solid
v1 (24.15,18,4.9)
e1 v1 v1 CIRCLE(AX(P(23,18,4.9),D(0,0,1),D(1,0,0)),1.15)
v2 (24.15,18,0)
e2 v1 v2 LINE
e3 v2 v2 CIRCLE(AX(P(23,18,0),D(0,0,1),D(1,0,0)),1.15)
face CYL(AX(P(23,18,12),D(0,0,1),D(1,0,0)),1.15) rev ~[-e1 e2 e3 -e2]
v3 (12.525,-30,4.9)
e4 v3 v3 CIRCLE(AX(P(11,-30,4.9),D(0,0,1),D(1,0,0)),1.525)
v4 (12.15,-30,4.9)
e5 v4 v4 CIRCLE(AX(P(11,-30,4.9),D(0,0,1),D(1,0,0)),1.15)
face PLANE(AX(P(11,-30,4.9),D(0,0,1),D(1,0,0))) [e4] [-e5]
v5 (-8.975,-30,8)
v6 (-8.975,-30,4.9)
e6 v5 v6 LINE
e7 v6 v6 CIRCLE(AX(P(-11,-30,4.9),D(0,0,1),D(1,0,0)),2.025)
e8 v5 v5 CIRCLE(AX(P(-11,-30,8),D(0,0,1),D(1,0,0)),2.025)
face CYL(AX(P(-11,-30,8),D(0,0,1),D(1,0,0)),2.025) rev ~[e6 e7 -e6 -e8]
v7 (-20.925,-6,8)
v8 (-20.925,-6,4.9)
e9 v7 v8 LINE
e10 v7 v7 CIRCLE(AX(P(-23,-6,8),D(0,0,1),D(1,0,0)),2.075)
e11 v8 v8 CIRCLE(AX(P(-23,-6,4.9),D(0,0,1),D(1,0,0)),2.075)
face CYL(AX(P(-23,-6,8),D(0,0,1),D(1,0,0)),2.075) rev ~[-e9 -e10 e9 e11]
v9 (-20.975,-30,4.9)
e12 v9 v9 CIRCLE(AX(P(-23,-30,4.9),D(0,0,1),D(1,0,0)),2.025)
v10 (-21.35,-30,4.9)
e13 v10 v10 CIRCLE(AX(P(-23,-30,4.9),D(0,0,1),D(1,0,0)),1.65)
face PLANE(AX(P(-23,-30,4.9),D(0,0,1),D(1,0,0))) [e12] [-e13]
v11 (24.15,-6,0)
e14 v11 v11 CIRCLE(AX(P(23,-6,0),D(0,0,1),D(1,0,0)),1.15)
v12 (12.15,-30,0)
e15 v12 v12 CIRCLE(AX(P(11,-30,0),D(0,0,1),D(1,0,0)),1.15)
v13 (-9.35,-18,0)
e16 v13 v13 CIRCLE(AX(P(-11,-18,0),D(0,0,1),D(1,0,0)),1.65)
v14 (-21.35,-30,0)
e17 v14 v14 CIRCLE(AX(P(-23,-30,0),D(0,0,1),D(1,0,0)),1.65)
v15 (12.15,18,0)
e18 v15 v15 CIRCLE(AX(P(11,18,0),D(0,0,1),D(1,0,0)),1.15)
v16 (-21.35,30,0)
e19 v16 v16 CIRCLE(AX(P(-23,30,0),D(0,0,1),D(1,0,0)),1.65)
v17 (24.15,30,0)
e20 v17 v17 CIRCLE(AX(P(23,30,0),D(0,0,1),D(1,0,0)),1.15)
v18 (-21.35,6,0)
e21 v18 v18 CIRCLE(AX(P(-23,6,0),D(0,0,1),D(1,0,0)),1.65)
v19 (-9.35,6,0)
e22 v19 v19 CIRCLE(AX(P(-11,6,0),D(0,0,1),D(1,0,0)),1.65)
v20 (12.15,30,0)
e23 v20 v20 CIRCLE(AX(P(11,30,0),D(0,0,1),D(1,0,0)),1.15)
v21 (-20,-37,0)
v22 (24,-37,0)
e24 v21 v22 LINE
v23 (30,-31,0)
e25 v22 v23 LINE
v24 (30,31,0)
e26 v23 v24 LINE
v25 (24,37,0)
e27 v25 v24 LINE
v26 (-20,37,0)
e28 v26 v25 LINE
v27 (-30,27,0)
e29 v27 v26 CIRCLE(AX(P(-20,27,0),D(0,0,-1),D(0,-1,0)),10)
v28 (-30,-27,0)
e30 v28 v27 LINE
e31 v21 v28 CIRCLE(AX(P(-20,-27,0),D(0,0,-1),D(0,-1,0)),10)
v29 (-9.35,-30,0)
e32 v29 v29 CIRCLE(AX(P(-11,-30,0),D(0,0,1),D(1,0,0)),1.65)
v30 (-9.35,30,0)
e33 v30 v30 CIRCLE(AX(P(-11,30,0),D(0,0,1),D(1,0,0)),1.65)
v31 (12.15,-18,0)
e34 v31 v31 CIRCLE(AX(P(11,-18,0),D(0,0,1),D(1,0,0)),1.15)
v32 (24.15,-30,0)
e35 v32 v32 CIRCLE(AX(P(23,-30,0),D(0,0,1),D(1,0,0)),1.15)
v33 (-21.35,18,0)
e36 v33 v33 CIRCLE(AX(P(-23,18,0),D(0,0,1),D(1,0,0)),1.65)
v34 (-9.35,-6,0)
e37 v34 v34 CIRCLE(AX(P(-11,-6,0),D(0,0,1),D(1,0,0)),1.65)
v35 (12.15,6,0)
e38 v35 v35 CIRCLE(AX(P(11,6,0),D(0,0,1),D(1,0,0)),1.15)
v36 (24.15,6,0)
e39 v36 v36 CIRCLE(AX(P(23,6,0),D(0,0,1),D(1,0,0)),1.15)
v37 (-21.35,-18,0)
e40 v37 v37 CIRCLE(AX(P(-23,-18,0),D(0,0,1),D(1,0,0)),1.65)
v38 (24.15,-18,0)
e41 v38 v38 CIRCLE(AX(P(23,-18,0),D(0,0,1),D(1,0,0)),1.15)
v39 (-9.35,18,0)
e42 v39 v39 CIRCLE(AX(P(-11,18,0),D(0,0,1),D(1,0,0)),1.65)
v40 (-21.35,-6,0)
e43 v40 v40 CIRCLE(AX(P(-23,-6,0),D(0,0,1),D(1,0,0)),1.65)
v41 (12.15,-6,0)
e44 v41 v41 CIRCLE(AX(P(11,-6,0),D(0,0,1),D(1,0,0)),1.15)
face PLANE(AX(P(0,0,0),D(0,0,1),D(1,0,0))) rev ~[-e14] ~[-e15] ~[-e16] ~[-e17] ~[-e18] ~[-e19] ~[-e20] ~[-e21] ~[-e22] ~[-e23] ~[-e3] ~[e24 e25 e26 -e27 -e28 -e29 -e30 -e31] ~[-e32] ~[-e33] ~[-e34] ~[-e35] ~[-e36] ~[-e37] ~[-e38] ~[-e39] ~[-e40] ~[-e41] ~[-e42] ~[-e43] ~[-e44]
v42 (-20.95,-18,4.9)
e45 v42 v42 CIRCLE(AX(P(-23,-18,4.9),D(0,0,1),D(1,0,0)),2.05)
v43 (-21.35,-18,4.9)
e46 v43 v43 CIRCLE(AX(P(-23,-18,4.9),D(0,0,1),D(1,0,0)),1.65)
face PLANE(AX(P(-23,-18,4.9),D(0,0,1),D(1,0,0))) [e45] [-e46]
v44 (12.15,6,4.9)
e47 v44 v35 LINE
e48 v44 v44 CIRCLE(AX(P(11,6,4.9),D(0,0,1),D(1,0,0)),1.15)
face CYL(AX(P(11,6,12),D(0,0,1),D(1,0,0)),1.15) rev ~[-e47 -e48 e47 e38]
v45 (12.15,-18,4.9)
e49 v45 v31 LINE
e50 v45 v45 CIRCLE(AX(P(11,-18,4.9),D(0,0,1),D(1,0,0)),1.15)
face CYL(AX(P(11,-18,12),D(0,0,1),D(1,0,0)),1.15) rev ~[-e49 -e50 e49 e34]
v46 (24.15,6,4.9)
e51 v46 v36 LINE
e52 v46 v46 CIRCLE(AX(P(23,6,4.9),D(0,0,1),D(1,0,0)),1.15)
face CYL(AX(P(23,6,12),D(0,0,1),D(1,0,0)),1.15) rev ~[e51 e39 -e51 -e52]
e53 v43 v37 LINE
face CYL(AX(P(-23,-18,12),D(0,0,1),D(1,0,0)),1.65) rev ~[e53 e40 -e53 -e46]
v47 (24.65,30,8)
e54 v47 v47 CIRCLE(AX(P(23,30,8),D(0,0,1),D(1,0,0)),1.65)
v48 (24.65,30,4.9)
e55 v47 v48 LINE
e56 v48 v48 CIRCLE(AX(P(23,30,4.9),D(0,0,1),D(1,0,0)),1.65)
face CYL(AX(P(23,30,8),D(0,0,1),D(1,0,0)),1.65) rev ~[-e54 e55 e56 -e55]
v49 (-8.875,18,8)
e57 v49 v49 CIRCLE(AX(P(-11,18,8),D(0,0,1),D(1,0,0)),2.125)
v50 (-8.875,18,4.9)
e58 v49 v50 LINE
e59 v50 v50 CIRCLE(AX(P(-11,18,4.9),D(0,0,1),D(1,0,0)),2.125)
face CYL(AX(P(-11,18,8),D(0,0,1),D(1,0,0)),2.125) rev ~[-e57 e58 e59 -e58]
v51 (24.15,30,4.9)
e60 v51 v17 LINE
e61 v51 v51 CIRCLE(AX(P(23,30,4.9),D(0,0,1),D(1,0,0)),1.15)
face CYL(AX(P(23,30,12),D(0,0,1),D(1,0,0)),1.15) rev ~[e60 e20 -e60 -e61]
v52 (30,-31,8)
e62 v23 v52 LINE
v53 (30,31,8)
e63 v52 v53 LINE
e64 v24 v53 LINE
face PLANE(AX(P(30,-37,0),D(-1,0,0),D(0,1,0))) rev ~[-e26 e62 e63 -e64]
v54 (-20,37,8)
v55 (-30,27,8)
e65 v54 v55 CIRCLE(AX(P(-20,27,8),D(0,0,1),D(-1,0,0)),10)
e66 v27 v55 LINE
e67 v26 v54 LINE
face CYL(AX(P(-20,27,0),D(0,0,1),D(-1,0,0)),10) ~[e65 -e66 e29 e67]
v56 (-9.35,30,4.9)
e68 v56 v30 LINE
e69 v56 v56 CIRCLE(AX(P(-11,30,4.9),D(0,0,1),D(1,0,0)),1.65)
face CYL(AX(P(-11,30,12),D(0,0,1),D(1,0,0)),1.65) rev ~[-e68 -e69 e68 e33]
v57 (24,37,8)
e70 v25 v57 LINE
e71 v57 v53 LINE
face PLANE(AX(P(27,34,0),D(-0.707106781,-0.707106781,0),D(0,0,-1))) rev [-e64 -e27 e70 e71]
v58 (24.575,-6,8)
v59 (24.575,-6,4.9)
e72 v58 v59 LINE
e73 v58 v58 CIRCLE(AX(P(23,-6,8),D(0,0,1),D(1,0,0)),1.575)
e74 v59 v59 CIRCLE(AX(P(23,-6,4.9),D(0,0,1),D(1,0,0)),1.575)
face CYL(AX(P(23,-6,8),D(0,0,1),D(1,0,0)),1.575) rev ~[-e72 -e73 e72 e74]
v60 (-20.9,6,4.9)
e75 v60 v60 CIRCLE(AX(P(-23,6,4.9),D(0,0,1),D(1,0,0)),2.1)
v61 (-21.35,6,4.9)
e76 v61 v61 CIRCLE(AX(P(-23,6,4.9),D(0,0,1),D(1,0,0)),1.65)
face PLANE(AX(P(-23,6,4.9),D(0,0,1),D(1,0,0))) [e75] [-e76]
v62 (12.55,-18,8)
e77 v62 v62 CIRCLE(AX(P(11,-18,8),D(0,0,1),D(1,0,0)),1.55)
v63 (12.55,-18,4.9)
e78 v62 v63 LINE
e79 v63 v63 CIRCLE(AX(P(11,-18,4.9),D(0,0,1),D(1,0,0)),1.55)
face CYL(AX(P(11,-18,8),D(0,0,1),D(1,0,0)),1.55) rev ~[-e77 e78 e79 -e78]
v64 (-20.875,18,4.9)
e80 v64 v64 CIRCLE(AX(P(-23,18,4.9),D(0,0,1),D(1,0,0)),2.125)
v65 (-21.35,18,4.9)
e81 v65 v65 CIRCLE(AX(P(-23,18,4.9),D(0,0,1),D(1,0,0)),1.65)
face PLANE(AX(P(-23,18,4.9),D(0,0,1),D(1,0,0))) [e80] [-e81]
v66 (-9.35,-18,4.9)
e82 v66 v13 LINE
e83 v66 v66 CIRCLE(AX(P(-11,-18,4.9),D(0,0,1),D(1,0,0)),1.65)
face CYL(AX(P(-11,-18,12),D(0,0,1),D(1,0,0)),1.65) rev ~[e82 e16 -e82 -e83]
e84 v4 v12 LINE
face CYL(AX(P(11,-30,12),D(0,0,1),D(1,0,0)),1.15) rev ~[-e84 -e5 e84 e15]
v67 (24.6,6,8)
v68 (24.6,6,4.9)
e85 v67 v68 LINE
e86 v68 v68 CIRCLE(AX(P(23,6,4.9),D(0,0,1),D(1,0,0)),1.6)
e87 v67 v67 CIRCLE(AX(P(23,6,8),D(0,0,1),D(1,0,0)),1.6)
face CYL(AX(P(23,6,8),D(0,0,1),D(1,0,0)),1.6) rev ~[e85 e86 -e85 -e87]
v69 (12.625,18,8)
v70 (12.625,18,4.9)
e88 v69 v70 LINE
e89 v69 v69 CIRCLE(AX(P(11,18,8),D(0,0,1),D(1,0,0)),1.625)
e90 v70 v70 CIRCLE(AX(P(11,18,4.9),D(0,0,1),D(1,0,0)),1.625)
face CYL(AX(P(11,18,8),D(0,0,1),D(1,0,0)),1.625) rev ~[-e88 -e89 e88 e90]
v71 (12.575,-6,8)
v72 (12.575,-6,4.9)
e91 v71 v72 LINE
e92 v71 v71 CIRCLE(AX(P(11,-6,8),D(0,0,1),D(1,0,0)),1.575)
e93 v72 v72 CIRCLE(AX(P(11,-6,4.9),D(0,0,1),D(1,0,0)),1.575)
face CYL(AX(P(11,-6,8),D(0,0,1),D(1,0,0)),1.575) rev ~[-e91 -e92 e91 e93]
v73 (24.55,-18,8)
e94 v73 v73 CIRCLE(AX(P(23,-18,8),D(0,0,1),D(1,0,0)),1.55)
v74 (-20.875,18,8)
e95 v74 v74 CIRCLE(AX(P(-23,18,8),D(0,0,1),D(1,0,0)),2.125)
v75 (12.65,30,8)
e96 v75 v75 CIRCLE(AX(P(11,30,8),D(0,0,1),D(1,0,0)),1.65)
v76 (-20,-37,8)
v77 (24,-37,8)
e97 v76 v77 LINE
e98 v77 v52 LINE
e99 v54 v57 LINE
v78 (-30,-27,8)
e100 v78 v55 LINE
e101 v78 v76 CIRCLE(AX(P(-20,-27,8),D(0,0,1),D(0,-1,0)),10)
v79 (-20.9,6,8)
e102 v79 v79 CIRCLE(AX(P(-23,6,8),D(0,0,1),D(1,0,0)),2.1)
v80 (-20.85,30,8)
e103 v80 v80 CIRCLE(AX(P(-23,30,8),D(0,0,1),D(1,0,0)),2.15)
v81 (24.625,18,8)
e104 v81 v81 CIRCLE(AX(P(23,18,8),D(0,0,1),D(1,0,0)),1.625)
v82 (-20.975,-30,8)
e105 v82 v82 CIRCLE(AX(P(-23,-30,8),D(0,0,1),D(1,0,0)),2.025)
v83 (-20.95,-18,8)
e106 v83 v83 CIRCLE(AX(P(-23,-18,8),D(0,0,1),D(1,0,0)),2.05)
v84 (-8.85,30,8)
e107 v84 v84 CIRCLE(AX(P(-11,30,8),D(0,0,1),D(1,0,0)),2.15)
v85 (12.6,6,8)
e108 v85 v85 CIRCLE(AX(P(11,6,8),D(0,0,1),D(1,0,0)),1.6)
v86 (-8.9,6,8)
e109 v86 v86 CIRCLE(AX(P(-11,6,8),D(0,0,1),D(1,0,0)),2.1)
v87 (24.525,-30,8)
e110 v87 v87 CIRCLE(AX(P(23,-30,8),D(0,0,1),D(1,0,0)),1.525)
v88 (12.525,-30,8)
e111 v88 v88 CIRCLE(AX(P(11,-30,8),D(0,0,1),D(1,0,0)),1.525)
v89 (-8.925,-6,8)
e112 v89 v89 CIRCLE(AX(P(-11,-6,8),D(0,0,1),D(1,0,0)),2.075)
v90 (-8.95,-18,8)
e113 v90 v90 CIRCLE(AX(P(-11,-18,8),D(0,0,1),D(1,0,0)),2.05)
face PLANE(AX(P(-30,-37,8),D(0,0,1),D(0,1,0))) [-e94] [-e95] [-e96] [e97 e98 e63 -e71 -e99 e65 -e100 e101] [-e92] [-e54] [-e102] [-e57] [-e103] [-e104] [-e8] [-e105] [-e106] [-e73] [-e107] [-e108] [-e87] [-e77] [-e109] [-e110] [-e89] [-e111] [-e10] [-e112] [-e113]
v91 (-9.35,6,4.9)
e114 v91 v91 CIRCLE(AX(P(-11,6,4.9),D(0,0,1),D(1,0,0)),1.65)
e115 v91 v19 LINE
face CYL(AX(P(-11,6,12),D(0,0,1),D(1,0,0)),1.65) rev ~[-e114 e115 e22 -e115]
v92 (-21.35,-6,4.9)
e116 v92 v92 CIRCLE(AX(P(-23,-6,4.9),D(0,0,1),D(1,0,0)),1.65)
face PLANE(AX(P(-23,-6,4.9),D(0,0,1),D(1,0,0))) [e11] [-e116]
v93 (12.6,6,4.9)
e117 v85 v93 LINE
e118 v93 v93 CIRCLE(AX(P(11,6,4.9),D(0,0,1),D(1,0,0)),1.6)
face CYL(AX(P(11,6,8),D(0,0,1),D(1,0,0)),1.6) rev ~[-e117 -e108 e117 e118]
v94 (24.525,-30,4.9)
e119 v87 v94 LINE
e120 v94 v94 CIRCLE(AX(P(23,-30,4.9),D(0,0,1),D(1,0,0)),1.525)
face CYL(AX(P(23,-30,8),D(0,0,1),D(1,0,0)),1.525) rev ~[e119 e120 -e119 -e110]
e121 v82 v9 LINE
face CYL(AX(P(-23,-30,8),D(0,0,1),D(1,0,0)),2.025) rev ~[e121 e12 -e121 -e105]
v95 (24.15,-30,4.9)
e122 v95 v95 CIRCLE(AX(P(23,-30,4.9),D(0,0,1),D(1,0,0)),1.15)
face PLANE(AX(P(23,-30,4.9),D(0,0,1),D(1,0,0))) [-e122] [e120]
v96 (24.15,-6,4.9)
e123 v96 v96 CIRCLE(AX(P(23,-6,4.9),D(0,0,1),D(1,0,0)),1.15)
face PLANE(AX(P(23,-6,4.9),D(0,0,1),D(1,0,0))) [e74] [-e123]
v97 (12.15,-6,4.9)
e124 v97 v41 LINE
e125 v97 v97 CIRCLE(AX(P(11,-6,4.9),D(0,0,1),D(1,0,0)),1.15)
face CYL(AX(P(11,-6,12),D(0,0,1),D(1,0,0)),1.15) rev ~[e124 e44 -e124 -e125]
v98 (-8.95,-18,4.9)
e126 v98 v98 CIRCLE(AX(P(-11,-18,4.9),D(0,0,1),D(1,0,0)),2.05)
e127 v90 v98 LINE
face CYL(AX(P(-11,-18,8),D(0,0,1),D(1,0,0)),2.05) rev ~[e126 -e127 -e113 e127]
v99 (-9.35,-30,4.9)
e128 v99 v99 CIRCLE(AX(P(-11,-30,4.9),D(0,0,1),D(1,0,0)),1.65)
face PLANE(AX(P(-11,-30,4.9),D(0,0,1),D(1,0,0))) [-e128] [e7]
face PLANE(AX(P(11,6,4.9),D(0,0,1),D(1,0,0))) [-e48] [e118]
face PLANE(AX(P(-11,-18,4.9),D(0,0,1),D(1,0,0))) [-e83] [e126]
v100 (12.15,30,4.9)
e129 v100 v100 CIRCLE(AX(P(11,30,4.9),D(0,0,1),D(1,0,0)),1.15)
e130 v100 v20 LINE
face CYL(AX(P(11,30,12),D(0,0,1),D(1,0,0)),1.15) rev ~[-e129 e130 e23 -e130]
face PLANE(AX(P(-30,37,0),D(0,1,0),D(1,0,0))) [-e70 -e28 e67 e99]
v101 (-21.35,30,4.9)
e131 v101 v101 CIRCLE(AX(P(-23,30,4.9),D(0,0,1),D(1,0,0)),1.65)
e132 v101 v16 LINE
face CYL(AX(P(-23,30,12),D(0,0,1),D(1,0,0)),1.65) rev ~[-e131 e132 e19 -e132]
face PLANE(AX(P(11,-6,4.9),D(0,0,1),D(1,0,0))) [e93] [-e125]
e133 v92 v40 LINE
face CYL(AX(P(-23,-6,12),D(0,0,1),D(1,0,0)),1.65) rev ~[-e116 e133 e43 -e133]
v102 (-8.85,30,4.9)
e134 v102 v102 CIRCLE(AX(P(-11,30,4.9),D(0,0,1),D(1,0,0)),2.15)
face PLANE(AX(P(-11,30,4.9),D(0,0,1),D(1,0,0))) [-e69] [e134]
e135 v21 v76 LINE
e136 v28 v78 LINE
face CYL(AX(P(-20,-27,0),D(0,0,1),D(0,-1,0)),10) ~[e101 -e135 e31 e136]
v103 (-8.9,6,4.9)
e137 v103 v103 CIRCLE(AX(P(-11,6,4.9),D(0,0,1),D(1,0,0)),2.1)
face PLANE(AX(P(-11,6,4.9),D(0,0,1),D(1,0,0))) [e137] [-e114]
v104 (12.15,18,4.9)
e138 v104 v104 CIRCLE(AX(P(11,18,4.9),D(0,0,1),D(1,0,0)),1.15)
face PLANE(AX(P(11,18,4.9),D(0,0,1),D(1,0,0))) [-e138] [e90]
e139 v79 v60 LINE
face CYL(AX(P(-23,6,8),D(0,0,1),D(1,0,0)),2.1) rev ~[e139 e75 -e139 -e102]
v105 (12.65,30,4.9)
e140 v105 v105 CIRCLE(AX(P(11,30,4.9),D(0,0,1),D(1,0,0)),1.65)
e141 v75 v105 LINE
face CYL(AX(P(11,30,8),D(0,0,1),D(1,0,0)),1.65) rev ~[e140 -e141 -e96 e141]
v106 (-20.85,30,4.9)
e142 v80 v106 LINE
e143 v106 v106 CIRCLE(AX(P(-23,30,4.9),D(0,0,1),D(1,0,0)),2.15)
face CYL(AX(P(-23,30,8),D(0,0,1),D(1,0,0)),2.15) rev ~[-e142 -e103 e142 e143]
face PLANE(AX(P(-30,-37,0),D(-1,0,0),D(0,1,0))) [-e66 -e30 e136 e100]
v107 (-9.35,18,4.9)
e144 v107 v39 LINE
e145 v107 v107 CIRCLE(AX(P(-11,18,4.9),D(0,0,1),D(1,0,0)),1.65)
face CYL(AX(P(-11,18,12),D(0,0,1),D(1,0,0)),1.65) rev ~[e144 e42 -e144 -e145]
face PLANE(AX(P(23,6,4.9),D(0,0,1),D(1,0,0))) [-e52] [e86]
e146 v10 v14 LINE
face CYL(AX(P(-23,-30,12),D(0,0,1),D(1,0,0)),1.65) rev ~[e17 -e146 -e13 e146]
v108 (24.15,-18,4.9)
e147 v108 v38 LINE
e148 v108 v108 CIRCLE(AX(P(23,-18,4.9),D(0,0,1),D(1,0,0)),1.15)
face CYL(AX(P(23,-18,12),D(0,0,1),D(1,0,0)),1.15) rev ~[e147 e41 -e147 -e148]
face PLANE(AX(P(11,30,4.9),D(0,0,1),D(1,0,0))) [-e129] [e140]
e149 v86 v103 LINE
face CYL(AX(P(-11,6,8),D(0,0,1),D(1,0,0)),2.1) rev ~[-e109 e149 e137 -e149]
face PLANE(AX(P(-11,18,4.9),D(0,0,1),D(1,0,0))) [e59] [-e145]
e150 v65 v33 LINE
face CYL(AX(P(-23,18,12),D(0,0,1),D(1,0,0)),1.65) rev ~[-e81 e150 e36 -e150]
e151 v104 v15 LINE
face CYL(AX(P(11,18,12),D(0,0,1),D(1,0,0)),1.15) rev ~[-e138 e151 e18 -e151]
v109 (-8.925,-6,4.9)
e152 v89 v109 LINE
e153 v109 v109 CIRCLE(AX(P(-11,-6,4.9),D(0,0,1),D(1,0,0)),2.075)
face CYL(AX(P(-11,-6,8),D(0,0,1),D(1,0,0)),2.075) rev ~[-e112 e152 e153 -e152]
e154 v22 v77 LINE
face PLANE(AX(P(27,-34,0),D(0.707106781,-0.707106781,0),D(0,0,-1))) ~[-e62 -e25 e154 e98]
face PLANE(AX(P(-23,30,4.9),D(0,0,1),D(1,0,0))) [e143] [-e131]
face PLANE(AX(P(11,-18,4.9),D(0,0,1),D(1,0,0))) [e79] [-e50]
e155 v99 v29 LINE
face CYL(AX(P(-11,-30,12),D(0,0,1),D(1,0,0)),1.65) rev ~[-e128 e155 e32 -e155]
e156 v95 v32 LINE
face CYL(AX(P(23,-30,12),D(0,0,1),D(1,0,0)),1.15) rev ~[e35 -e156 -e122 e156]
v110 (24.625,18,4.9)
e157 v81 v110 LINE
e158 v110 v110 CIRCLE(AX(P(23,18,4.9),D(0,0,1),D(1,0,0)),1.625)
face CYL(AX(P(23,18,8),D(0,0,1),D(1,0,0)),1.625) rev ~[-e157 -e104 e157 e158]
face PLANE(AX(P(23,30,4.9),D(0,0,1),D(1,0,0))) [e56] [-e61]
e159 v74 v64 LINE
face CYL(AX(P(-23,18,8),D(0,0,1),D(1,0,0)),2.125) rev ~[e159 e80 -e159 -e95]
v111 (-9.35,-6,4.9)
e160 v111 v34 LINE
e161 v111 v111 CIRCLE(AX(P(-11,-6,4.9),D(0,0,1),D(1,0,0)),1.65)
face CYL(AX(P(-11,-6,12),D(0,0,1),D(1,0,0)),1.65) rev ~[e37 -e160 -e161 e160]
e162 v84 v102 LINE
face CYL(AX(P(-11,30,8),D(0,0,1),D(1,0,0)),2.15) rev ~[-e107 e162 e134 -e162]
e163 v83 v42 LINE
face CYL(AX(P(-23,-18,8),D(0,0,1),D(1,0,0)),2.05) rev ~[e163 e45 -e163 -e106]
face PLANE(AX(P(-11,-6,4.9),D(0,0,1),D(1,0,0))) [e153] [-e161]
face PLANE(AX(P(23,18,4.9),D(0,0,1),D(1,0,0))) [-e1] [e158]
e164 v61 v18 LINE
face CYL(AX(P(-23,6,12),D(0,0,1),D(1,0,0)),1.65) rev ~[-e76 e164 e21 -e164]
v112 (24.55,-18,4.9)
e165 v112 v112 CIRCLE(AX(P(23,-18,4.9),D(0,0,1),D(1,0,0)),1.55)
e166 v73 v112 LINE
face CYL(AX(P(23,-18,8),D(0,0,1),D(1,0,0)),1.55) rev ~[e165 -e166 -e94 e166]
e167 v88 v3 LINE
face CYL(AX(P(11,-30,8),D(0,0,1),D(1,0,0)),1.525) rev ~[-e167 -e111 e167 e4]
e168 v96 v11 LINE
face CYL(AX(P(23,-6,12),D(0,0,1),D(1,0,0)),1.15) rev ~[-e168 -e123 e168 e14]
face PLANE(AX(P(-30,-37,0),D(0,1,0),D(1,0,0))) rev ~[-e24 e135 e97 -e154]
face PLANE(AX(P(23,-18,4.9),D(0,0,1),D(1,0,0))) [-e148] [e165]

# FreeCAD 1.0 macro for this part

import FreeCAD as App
import Part
import Sketcher
Q = App.Units.Quantity


def edges_at(feature, points):
    """Names of the edges that pass closest to the given points."""
    edges = feature.Shape.Edges
    near = lambda p: min(range(len(edges)), key=lambda i: edges[i].distToShape(Part.Vertex(*p))[0])
    return sorted({f"Edge{near(p) + 1}" for p in points})

doc = App.newDocument("Part")
body = doc.addObject("PartDesign::Body", "Body")

# Sketch on XY plane
sketch1 = doc.addObject("Sketcher::SketchObject", "Sketch")
body.addObject(sketch1)
sketch1.AttachmentSupport = (doc.XY_Plane, [""])
sketch1.MapMode = "FlatFace"
sketch1.addGeometry(Part.LineSegment(App.Vector(-30, 37, 0), App.Vector(-30, -37, 0)), False)
sketch1.addGeometry(Part.LineSegment(App.Vector(-30, -37, 0), App.Vector(30, -37, 0)), False)
sketch1.addGeometry(Part.LineSegment(App.Vector(30, -37, 0), App.Vector(30, 37, 0)), False)
sketch1.addGeometry(Part.LineSegment(App.Vector(30, 37, 0), App.Vector(-30, 37, 0)), False)
sketch1.addConstraint(Sketcher.Constraint("Coincident", 0, 2, 1, 1))
sketch1.addConstraint(Sketcher.Constraint("Coincident", 1, 2, 2, 1))
sketch1.addConstraint(Sketcher.Constraint("Coincident", 2, 2, 3, 1))
sketch1.addConstraint(Sketcher.Constraint("Coincident", 3, 2, 0, 1))
sketch1.addConstraint(Sketcher.Constraint("Vertical", 0))
sketch1.addConstraint(Sketcher.Constraint("Horizontal", 1))
sketch1.addConstraint(Sketcher.Constraint("Vertical", 2))
sketch1.addConstraint(Sketcher.Constraint("Horizontal", 3))
sketch1.addConstraint(Sketcher.Constraint("Symmetric", 0, 2, 2, 2, -1, 1))
sketch1.addConstraint(Sketcher.Constraint("DistanceX", 1, 1, 1, 2, Q("60 mm")))
sketch1.addConstraint(Sketcher.Constraint("DistanceY", 0, 2, 0, 1, Q("74 mm")))
pad1 = doc.addObject("PartDesign::Pad", "Pad")
body.addObject(pad1)
pad1.Profile = sketch1
pad1.Length = 12

# Sketch on XY plane
sketch2 = doc.addObject("Sketcher::SketchObject", "Sketch001")
body.addObject(sketch2)
sketch2.AttachmentSupport = (doc.XY_Plane, [""])
sketch2.MapMode = "FlatFace"
sketch2.AttachmentOffset = App.Placement(App.Vector(0, 0, 12), App.Rotation())
sketch2.addGeometry(Part.Circle(App.Vector(-23, -30, 0), App.Vector(0, 0, 1), 1.6), False)
sketch2.addGeometry(Part.Circle(App.Vector(23, -30, 0), App.Vector(0, 0, 1), 1.1), False)
sketch2.addGeometry(Part.Circle(App.Vector(-11, -30, 0), App.Vector(0, 0, 1), 1.6), False)
sketch2.addGeometry(Part.Circle(App.Vector(-11, -18, 0), App.Vector(0, 0, 1), 1.6), False)
sketch2.addGeometry(Part.Circle(App.Vector(-11, -6, 0), App.Vector(0, 0, 1), 1.6), False)
sketch2.addGeometry(Part.Circle(App.Vector(-11, 6, 0), App.Vector(0, 0, 1), 1.6), False)
sketch2.addGeometry(Part.Circle(App.Vector(-23, -18, 0), App.Vector(0, 0, 1), 1.6), False)
sketch2.addGeometry(Part.Circle(App.Vector(-23, -6, 0), App.Vector(0, 0, 1), 1.6), False)
sketch2.addGeometry(Part.Circle(App.Vector(-23, 6, 0), App.Vector(0, 0, 1), 1.6), False)
sketch2.addGeometry(Part.Circle(App.Vector(11, -30, 0), App.Vector(0, 0, 1), 1.1), False)
sketch2.addGeometry(Part.Circle(App.Vector(11, -18, 0), App.Vector(0, 0, 1), 1.1), False)
sketch2.addGeometry(Part.Circle(App.Vector(11, -6, 0), App.Vector(0, 0, 1), 1.1), False)
sketch2.addGeometry(Part.Circle(App.Vector(11, 6, 0), App.Vector(0, 0, 1), 1.1), False)
sketch2.addGeometry(Part.Circle(App.Vector(23, -18, 0), App.Vector(0, 0, 1), 1.1), False)
sketch2.addGeometry(Part.Circle(App.Vector(23, -6, 0), App.Vector(0, 0, 1), 1.1), False)
sketch2.addGeometry(Part.Circle(App.Vector(23, 6, 0), App.Vector(0, 0, 1), 1.1), False)
sketch2.addGeometry(Part.Circle(App.Vector(-23, 18, 0), App.Vector(0, 0, 1), 1.6), False)
sketch2.addGeometry(Part.Circle(App.Vector(-11, 18, 0), App.Vector(0, 0, 1), 1.6), False)
sketch2.addGeometry(Part.Circle(App.Vector(-23, 30, 0), App.Vector(0, 0, 1), 1.6), False)
sketch2.addGeometry(Part.Circle(App.Vector(-11, 30, 0), App.Vector(0, 0, 1), 1.6), False)
sketch2.addGeometry(Part.Circle(App.Vector(23, 18, 0), App.Vector(0, 0, 1), 1.1), False)
sketch2.addGeometry(Part.Circle(App.Vector(11, 18, 0), App.Vector(0, 0, 1), 1.1), False)
sketch2.addGeometry(Part.Circle(App.Vector(23, 30, 0), App.Vector(0, 0, 1), 1.1), False)
sketch2.addGeometry(Part.Circle(App.Vector(11, 30, 0), App.Vector(0, 0, 1), 1.1), False)
sketch2.addConstraint(Sketcher.Constraint("Equal", 0, 2))
sketch2.addConstraint(Sketcher.Constraint("Equal", 2, 3))
sketch2.addConstraint(Sketcher.Constraint("Equal", 3, 4))
sketch2.addConstraint(Sketcher.Constraint("Equal", 4, 5))
sketch2.addConstraint(Sketcher.Constraint("Equal", 5, 6))
sketch2.addConstraint(Sketcher.Constraint("Equal", 6, 7))
sketch2.addConstraint(Sketcher.Constraint("Equal", 7, 8))
sketch2.addConstraint(Sketcher.Constraint("Equal", 1, 9))
sketch2.addConstraint(Sketcher.Constraint("Equal", 9, 10))
sketch2.addConstraint(Sketcher.Constraint("Equal", 10, 11))
sketch2.addConstraint(Sketcher.Constraint("Equal", 11, 12))
sketch2.addConstraint(Sketcher.Constraint("Equal", 12, 13))
sketch2.addConstraint(Sketcher.Constraint("Equal", 13, 14))
sketch2.addConstraint(Sketcher.Constraint("Equal", 14, 15))
sketch2.addConstraint(Sketcher.Constraint("Equal", 8, 16))
sketch2.addConstraint(Sketcher.Constraint("Equal", 16, 17))
sketch2.addConstraint(Sketcher.Constraint("Equal", 17, 18))
sketch2.addConstraint(Sketcher.Constraint("Equal", 18, 19))
sketch2.addConstraint(Sketcher.Constraint("Equal", 15, 20))
sketch2.addConstraint(Sketcher.Constraint("Equal", 20, 21))
sketch2.addConstraint(Sketcher.Constraint("Equal", 21, 22))
sketch2.addConstraint(Sketcher.Constraint("Equal", 22, 23))
sketch2.addConstraint(Sketcher.Constraint("Symmetric", 5, 3, 11, 3, -1, 1))
sketch2.addConstraint(Sketcher.Constraint("Symmetric", 4, 3, 12, 3, -1, 1))
sketch2.addConstraint(Sketcher.Constraint("Symmetric", 8, 3, 14, 3, -1, 1))
sketch2.addConstraint(Sketcher.Constraint("Symmetric", 7, 3, 15, 3, -1, 1))
sketch2.addConstraint(Sketcher.Constraint("Symmetric", 13, 3, 16, 3, -1, 1))
sketch2.addConstraint(Sketcher.Constraint("Symmetric", 10, 3, 17, 3, -1, 1))
sketch2.addConstraint(Sketcher.Constraint("Symmetric", 1, 3, 18, 3, -1, 1))
sketch2.addConstraint(Sketcher.Constraint("Symmetric", 9, 3, 19, 3, -1, 1))
sketch2.addConstraint(Sketcher.Constraint("Symmetric", 6, 3, 20, 3, -1, 1))
sketch2.addConstraint(Sketcher.Constraint("Symmetric", 3, 3, 21, 3, -1, 1))
sketch2.addConstraint(Sketcher.Constraint("Symmetric", 0, 3, 22, 3, -1, 1))
sketch2.addConstraint(Sketcher.Constraint("Symmetric", 2, 3, 23, 3, -1, 1))
sketch2.addConstraint(Sketcher.Constraint("Symmetric", 0, 3, 1, 3, -2))
sketch2.addConstraint(Sketcher.Constraint("Symmetric", 2, 3, 9, 3, -2))
sketch2.addConstraint(Sketcher.Constraint("Symmetric", 3, 3, 10, 3, -2))
sketch2.addConstraint(Sketcher.Constraint("Symmetric", 4, 3, 11, 3, -2))
sketch2.addConstraint(Sketcher.Constraint("Symmetric", 6, 3, 13, 3, -2))
sketch2.addConstraint(Sketcher.Constraint("Symmetric", 7, 3, 14, 3, -2))
sketch2.addConstraint(Sketcher.Constraint("Horizontal", 1, 3, 2, 3))
sketch2.addConstraint(Sketcher.Constraint("Horizontal", 3, 3, 6, 3))
sketch2.addConstraint(Sketcher.Constraint("Horizontal", 4, 3, 7, 3))
sketch2.addConstraint(Sketcher.Constraint("Vertical", 2, 3, 3, 3))
sketch2.addConstraint(Sketcher.Constraint("Vertical", 3, 3, 4, 3))
sketch2.addConstraint(Sketcher.Constraint("Vertical", 0, 3, 6, 3))
sketch2.addConstraint(Sketcher.Constraint("Vertical", 6, 3, 7, 3))
sketch2.addConstraint(Sketcher.Constraint("Diameter", 0, Q("3.3 mm")))
sketch2.addConstraint(Sketcher.Constraint("Diameter", 1, Q("2.3 mm")))
sketch2.addConstraint(Sketcher.Constraint("DistanceX", 0, 3, -1, 1, Q("23 mm")))
sketch2.addConstraint(Sketcher.Constraint("DistanceY", 0, 3, -1, 1, Q("30 mm")))
sketch2.addConstraint(Sketcher.Constraint("DistanceX", 2, 3, -1, 1, Q("11 mm")))
sketch2.addConstraint(Sketcher.Constraint("DistanceY", 3, 3, -1, 1, Q("18 mm")))
sketch2.addConstraint(Sketcher.Constraint("DistanceY", 4, 3, -1, 1, Q("6 mm")))
pocket1 = doc.addObject("PartDesign::Pocket", "Pocket")
body.addObject(pocket1)
pocket1.Profile = sketch2
pocket1.Type = "ThroughAll"
doc.recompute()

chamfer = doc.addObject("PartDesign::Chamfer", "Chamfer")
body.addObject(chamfer)
chamfer.Base = (pocket1, edges_at(pocket1, [(30, 37, 6), (30, -37, 6)]))
chamfer.Size = 6
doc.recompute()

fillet = doc.addObject("PartDesign::Fillet", "Fillet")
body.addObject(fillet)
fillet.Base = (chamfer, edges_at(chamfer, [(-30, 37, 6), (-30, -37, 6)]))
fillet.Radius = 10

# Sketch on XY plane
sketch3 = doc.addObject("Sketcher::SketchObject", "Sketch002")
body.addObject(sketch3)
sketch3.AttachmentSupport = (doc.XY_Plane, [""])
sketch3.MapMode = "FlatFace"
sketch3.AttachmentOffset = App.Placement(App.Vector(0, 0, 12), App.Rotation())
sketch3.addGeometry(Part.Circle(App.Vector(-23, -30, 0), App.Vector(0, 0, 1), 2.9), False)
sketch3.addGeometry(Part.Circle(App.Vector(-11, -30, 0), App.Vector(0, 0, 1), 2.9), False)
sketch3.addGeometry(Part.Circle(App.Vector(-11, -18, 0), App.Vector(0, 0, 1), 2.9), False)
sketch3.addGeometry(Part.Circle(App.Vector(-11, -6, 0), App.Vector(0, 0, 1), 2.9), False)
sketch3.addGeometry(Part.Circle(App.Vector(-11, 6, 0), App.Vector(0, 0, 1), 2.9), False)
sketch3.addGeometry(Part.Circle(App.Vector(-23, -18, 0), App.Vector(0, 0, 1), 2.9), False)
sketch3.addGeometry(Part.Circle(App.Vector(-23, -6, 0), App.Vector(0, 0, 1), 2.9), False)
sketch3.addGeometry(Part.Circle(App.Vector(-23, 6, 0), App.Vector(0, 0, 1), 2.9), False)
sketch3.addGeometry(Part.Circle(App.Vector(11, -30, 0), App.Vector(0, 0, 1), 2.4), False)
sketch3.addGeometry(Part.Circle(App.Vector(23, -30, 0), App.Vector(0, 0, 1), 2.4), False)
sketch3.addGeometry(Part.Circle(App.Vector(23, -18, 0), App.Vector(0, 0, 1), 2.4), False)
sketch3.addGeometry(Part.Circle(App.Vector(23, -6, 0), App.Vector(0, 0, 1), 2.4), False)
sketch3.addGeometry(Part.Circle(App.Vector(23, 6, 0), App.Vector(0, 0, 1), 2.4), False)
sketch3.addGeometry(Part.Circle(App.Vector(11, -18, 0), App.Vector(0, 0, 1), 2.4), False)
sketch3.addGeometry(Part.Circle(App.Vector(11, -6, 0), App.Vector(0, 0, 1), 2.4), False)
sketch3.addGeometry(Part.Circle(App.Vector(11, 6, 0), App.Vector(0, 0, 1), 2.4), False)
sketch3.addGeometry(Part.Circle(App.Vector(-23, 18, 0), App.Vector(0, 0, 1), 2.9), False)
sketch3.addGeometry(Part.Circle(App.Vector(-11, 18, 0), App.Vector(0, 0, 1), 2.9), False)
sketch3.addGeometry(Part.Circle(App.Vector(-23, 30, 0), App.Vector(0, 0, 1), 2.9), False)
sketch3.addGeometry(Part.Circle(App.Vector(-11, 30, 0), App.Vector(0, 0, 1), 2.9), False)
sketch3.addGeometry(Part.Circle(App.Vector(11, 18, 0), App.Vector(0, 0, 1), 2.4), False)
sketch3.addGeometry(Part.Circle(App.Vector(23, 18, 0), App.Vector(0, 0, 1), 2.4), False)
sketch3.addGeometry(Part.Circle(App.Vector(11, 30, 0), App.Vector(0, 0, 1), 2.4), False)
sketch3.addGeometry(Part.Circle(App.Vector(23, 30, 0), App.Vector(0, 0, 1), 2.4), False)
sketch3.addConstraint(Sketcher.Constraint("Equal", 0, 1))
sketch3.addConstraint(Sketcher.Constraint("Equal", 1, 2))
sketch3.addConstraint(Sketcher.Constraint("Equal", 2, 3))
sketch3.addConstraint(Sketcher.Constraint("Equal", 3, 4))
sketch3.addConstraint(Sketcher.Constraint("Equal", 4, 5))
sketch3.addConstraint(Sketcher.Constraint("Equal", 5, 6))
sketch3.addConstraint(Sketcher.Constraint("Equal", 6, 7))
sketch3.addConstraint(Sketcher.Constraint("Equal", 8, 9))
sketch3.addConstraint(Sketcher.Constraint("Equal", 9, 10))
sketch3.addConstraint(Sketcher.Constraint("Equal", 10, 11))
sketch3.addConstraint(Sketcher.Constraint("Equal", 11, 12))
sketch3.addConstraint(Sketcher.Constraint("Equal", 12, 13))
sketch3.addConstraint(Sketcher.Constraint("Equal", 13, 14))
sketch3.addConstraint(Sketcher.Constraint("Equal", 14, 15))
sketch3.addConstraint(Sketcher.Constraint("Equal", 7, 16))
sketch3.addConstraint(Sketcher.Constraint("Equal", 16, 17))
sketch3.addConstraint(Sketcher.Constraint("Equal", 17, 18))
sketch3.addConstraint(Sketcher.Constraint("Equal", 18, 19))
sketch3.addConstraint(Sketcher.Constraint("Equal", 15, 20))
sketch3.addConstraint(Sketcher.Constraint("Equal", 20, 21))
sketch3.addConstraint(Sketcher.Constraint("Equal", 21, 22))
sketch3.addConstraint(Sketcher.Constraint("Equal", 22, 23))
sketch3.addConstraint(Sketcher.Constraint("Symmetric", 7, 3, 11, 3, -1, 1))
sketch3.addConstraint(Sketcher.Constraint("Symmetric", 6, 3, 12, 3, -1, 1))
sketch3.addConstraint(Sketcher.Constraint("Symmetric", 4, 3, 14, 3, -1, 1))
sketch3.addConstraint(Sketcher.Constraint("Symmetric", 3, 3, 15, 3, -1, 1))
sketch3.addConstraint(Sketcher.Constraint("Symmetric", 10, 3, 16, 3, -1, 1))
sketch3.addConstraint(Sketcher.Constraint("Symmetric", 13, 3, 17, 3, -1, 1))
sketch3.addConstraint(Sketcher.Constraint("Symmetric", 9, 3, 18, 3, -1, 1))
sketch3.addConstraint(Sketcher.Constraint("Symmetric", 8, 3, 19, 3, -1, 1))
sketch3.addConstraint(Sketcher.Constraint("Symmetric", 2, 3, 20, 3, -1, 1))
sketch3.addConstraint(Sketcher.Constraint("Symmetric", 5, 3, 21, 3, -1, 1))
sketch3.addConstraint(Sketcher.Constraint("Symmetric", 1, 3, 22, 3, -1, 1))
sketch3.addConstraint(Sketcher.Constraint("Symmetric", 0, 3, 23, 3, -1, 1))
sketch3.addConstraint(Sketcher.Constraint("Symmetric", 1, 3, 8, 3, -2))
sketch3.addConstraint(Sketcher.Constraint("Symmetric", 0, 3, 9, 3, -2))
sketch3.addConstraint(Sketcher.Constraint("Symmetric", 5, 3, 10, 3, -2))
sketch3.addConstraint(Sketcher.Constraint("Symmetric", 6, 3, 11, 3, -2))
sketch3.addConstraint(Sketcher.Constraint("Symmetric", 2, 3, 13, 3, -2))
sketch3.addConstraint(Sketcher.Constraint("Symmetric", 3, 3, 14, 3, -2))
sketch3.addConstraint(Sketcher.Constraint("Horizontal", 0, 3, 1, 3))
sketch3.addConstraint(Sketcher.Constraint("Horizontal", 2, 3, 5, 3))
sketch3.addConstraint(Sketcher.Constraint("Horizontal", 3, 3, 6, 3))
sketch3.addConstraint(Sketcher.Constraint("Vertical", 1, 3, 2, 3))
sketch3.addConstraint(Sketcher.Constraint("Vertical", 2, 3, 3, 3))
sketch3.addConstraint(Sketcher.Constraint("Vertical", 0, 3, 5, 3))
sketch3.addConstraint(Sketcher.Constraint("Vertical", 5, 3, 6, 3))
sketch3.addConstraint(Sketcher.Constraint("Diameter", 0, Q("5.8 mm")))
sketch3.addConstraint(Sketcher.Constraint("Diameter", 8, Q("4.8 mm")))
sketch3.addConstraint(Sketcher.Constraint("DistanceX", 0, 3, -1, 1, Q("23 mm")))
sketch3.addConstraint(Sketcher.Constraint("DistanceY", 0, 3, -1, 1, Q("30 mm")))
sketch3.addConstraint(Sketcher.Constraint("DistanceX", 1, 3, -1, 1, Q("11 mm")))
sketch3.addConstraint(Sketcher.Constraint("DistanceY", 2, 3, -1, 1, Q("18 mm")))
sketch3.addConstraint(Sketcher.Constraint("DistanceY", 3, 3, -1, 1, Q("6 mm")))
pocket2 = doc.addObject("PartDesign::Pocket", "Pocket001")
body.addObject(pocket2)
pocket2.Profile = sketch3
pocket2.Length = 4

# Sketch on XY plane
sketch4 = doc.addObject("Sketcher::SketchObject", "Sketch003")
body.addObject(sketch4)
sketch4.AttachmentSupport = (doc.XY_Plane, [""])
sketch4.MapMode = "FlatFace"
sketch4.AttachmentOffset = App.Placement(App.Vector(0, 0, 8), App.Rotation())
sketch4.addGeometry(Part.Circle(App.Vector(-23, 30, 0), App.Vector(0, 0, 1), 2.1), False)
sketch4.addGeometry(Part.Circle(App.Vector(-23, 18, 0), App.Vector(0, 0, 1), 2.1), False)
sketch4.addGeometry(Part.Circle(App.Vector(-23, 6, 0), App.Vector(0, 0, 1), 2.1), False)
sketch4.addGeometry(Part.Circle(App.Vector(-23, -6, 0), App.Vector(0, 0, 1), 2.1), False)
sketch4.addGeometry(Part.Circle(App.Vector(-23, -18, 0), App.Vector(0, 0, 1), 2), False)
sketch4.addGeometry(Part.Circle(App.Vector(-23, -30, 0), App.Vector(0, 0, 1), 2), False)
sketch4.addGeometry(Part.Circle(App.Vector(-11, 30, 0), App.Vector(0, 0, 1), 2.1), False)
sketch4.addGeometry(Part.Circle(App.Vector(11, -30, 0), App.Vector(0, 0, 1), 1.5), False)
sketch4.addGeometry(Part.Circle(App.Vector(11, -18, 0), App.Vector(0, 0, 1), 1.6), False)
sketch4.addGeometry(Part.Circle(App.Vector(11, -6, 0), App.Vector(0, 0, 1), 1.6), False)
sketch4.addGeometry(Part.Circle(App.Vector(11, 6, 0), App.Vector(0, 0, 1), 1.6), False)
sketch4.addGeometry(Part.Circle(App.Vector(11, 18, 0), App.Vector(0, 0, 1), 1.6), False)
sketch4.addGeometry(Part.Circle(App.Vector(11, 30, 0), App.Vector(0, 0, 1), 1.6), False)
sketch4.addGeometry(Part.Circle(App.Vector(-11, 18, 0), App.Vector(0, 0, 1), 2.1), False)
sketch4.addGeometry(Part.Circle(App.Vector(-11, 6, 0), App.Vector(0, 0, 1), 2.1), False)
sketch4.addGeometry(Part.Circle(App.Vector(-11, -6, 0), App.Vector(0, 0, 1), 2.1), False)
sketch4.addGeometry(Part.Circle(App.Vector(-11, -18, 0), App.Vector(0, 0, 1), 2), False)
sketch4.addGeometry(Part.Circle(App.Vector(-11, -30, 0), App.Vector(0, 0, 1), 2), False)
sketch4.addGeometry(Part.Circle(App.Vector(23, -30, 0), App.Vector(0, 0, 1), 1.5), False)
sketch4.addGeometry(Part.Circle(App.Vector(23, -18, 0), App.Vector(0, 0, 1), 1.6), False)
sketch4.addGeometry(Part.Circle(App.Vector(23, -6, 0), App.Vector(0, 0, 1), 1.6), False)
sketch4.addGeometry(Part.Circle(App.Vector(23, 6, 0), App.Vector(0, 0, 1), 1.6), False)
sketch4.addGeometry(Part.Circle(App.Vector(23, 18, 0), App.Vector(0, 0, 1), 1.6), False)
sketch4.addGeometry(Part.Circle(App.Vector(23, 30, 0), App.Vector(0, 0, 1), 1.6), False)
sketch4.addConstraint(Sketcher.Constraint("Equal", 0, 6))
sketch4.addConstraint(Sketcher.Constraint("Equal", 1, 13))
sketch4.addConstraint(Sketcher.Constraint("Equal", 2, 14))
sketch4.addConstraint(Sketcher.Constraint("Equal", 3, 15))
sketch4.addConstraint(Sketcher.Constraint("Equal", 4, 16))
sketch4.addConstraint(Sketcher.Constraint("Equal", 5, 17))
sketch4.addConstraint(Sketcher.Constraint("Equal", 7, 18))
sketch4.addConstraint(Sketcher.Constraint("Equal", 8, 19))
sketch4.addConstraint(Sketcher.Constraint("Equal", 9, 20))
sketch4.addConstraint(Sketcher.Constraint("Equal", 10, 21))
sketch4.addConstraint(Sketcher.Constraint("Equal", 11, 22))
sketch4.addConstraint(Sketcher.Constraint("Equal", 12, 23))
sketch4.addConstraint(Sketcher.Constraint("Symmetric", 6, 3, 7, 3, -1, 1))
sketch4.addConstraint(Sketcher.Constraint("Symmetric", 8, 3, 13, 3, -1, 1))
sketch4.addConstraint(Sketcher.Constraint("Symmetric", 9, 3, 14, 3, -1, 1))
sketch4.addConstraint(Sketcher.Constraint("Symmetric", 10, 3, 15, 3, -1, 1))
sketch4.addConstraint(Sketcher.Constraint("Symmetric", 11, 3, 16, 3, -1, 1))
sketch4.addConstraint(Sketcher.Constraint("Symmetric", 12, 3, 17, 3, -1, 1))
sketch4.addConstraint(Sketcher.Constraint("Symmetric", 0, 3, 18, 3, -1, 1))
sketch4.addConstraint(Sketcher.Constraint("Symmetric", 1, 3, 19, 3, -1, 1))
sketch4.addConstraint(Sketcher.Constraint("Symmetric", 2, 3, 20, 3, -1, 1))
sketch4.addConstraint(Sketcher.Constraint("Symmetric", 3, 3, 21, 3, -1, 1))
sketch4.addConstraint(Sketcher.Constraint("Symmetric", 4, 3, 22, 3, -1, 1))
sketch4.addConstraint(Sketcher.Constraint("Symmetric", 5, 3, 23, 3, -1, 1))
sketch4.addConstraint(Sketcher.Constraint("Symmetric", 6, 3, 12, 3, -2))
sketch4.addConstraint(Sketcher.Constraint("Symmetric", 11, 3, 13, 3, -2))
sketch4.addConstraint(Sketcher.Constraint("Symmetric", 10, 3, 14, 3, -2))
sketch4.addConstraint(Sketcher.Constraint("Symmetric", 5, 3, 18, 3, -2))
sketch4.addConstraint(Sketcher.Constraint("Symmetric", 4, 3, 19, 3, -2))
sketch4.addConstraint(Sketcher.Constraint("Symmetric", 3, 3, 20, 3, -2))
sketch4.addConstraint(Sketcher.Constraint("Horizontal", 0, 3, 6, 3))
sketch4.addConstraint(Sketcher.Constraint("Horizontal", 4, 3, 8, 3))
sketch4.addConstraint(Sketcher.Constraint("Horizontal", 3, 3, 9, 3))
sketch4.addConstraint(Sketcher.Constraint("Vertical", 0, 3, 1, 3))
sketch4.addConstraint(Sketcher.Constraint("Vertical", 1, 3, 2, 3))
sketch4.addConstraint(Sketcher.Constraint("Vertical", 7, 3, 8, 3))
sketch4.addConstraint(Sketcher.Constraint("Vertical", 8, 3, 9, 3))
sketch4.addConstraint(Sketcher.Constraint("Diameter", 0, Q("4.3 mm")))
sketch4.addConstraint(Sketcher.Constraint("Diameter", 2, Q("4.2 mm")))
sketch4.addConstraint(Sketcher.Constraint("Diameter", 4, Q("4.1 mm")))
sketch4.addConstraint(Sketcher.Constraint("Diameter", 8, Q("3.1 mm")))
sketch4.addConstraint(Sketcher.Constraint("Diameter", 10, Q("3.2 mm")))
sketch4.addConstraint(Sketcher.Constraint("Diameter", 12, Q("3.3 mm")))
sketch4.addConstraint(Sketcher.Constraint("Diameter", 1, Q("4.25 mm")))
sketch4.addConstraint(Sketcher.Constraint("Diameter", 3, Q("4.15 mm")))
sketch4.addConstraint(Sketcher.Constraint("Diameter", 5, Q("4.05 mm")))
sketch4.addConstraint(Sketcher.Constraint("Diameter", 7, Q("3.05 mm")))
sketch4.addConstraint(Sketcher.Constraint("Diameter", 9, Q("3.15 mm")))
sketch4.addConstraint(Sketcher.Constraint("Diameter", 11, Q("3.25 mm")))
sketch4.addConstraint(Sketcher.Constraint("DistanceX", 0, 3, -1, 1, Q("23 mm")))
sketch4.addConstraint(Sketcher.Constraint("DistanceY", -1, 1, 0, 3, Q("30 mm")))
sketch4.addConstraint(Sketcher.Constraint("DistanceY", -1, 1, 1, 3, Q("18 mm")))
sketch4.addConstraint(Sketcher.Constraint("DistanceY", -1, 1, 2, 3, Q("6 mm")))
sketch4.addConstraint(Sketcher.Constraint("DistanceX", 6, 3, -1, 1, Q("11 mm")))
pocket3 = doc.addObject("PartDesign::Pocket", "Pocket002")
body.addObject(pocket3)
pocket3.Profile = sketch4
pocket3.Length = 3.1

# Sketch on YZ plane
sketch5 = doc.addObject("Sketcher::SketchObject", "Sketch004")
body.addObject(sketch5)
sketch5.AttachmentSupport = (doc.YZ_Plane, [""])
sketch5.MapMode = "FlatFace"
sketch5.AttachmentOffset = App.Placement(App.Vector(0, 0, -30), App.Rotation())
sketch5.addGeometry(Part.LineSegment(App.Vector(37, 8, 0), App.Vector(-37, 8, 0)), False)
sketch5.addGeometry(Part.LineSegment(App.Vector(-37, 8, 0), App.Vector(-37, 12, 0)), False)
sketch5.addGeometry(Part.LineSegment(App.Vector(-37, 12, 0), App.Vector(37, 12, 0)), False)
sketch5.addGeometry(Part.LineSegment(App.Vector(37, 12, 0), App.Vector(37, 8, 0)), False)
sketch5.addConstraint(Sketcher.Constraint("Coincident", 0, 2, 1, 1))
sketch5.addConstraint(Sketcher.Constraint("Coincident", 1, 2, 2, 1))
sketch5.addConstraint(Sketcher.Constraint("Coincident", 2, 2, 3, 1))
sketch5.addConstraint(Sketcher.Constraint("Coincident", 3, 2, 0, 1))
sketch5.addConstraint(Sketcher.Constraint("Horizontal", 0))
sketch5.addConstraint(Sketcher.Constraint("Vertical", 1))
sketch5.addConstraint(Sketcher.Constraint("Horizontal", 2))
sketch5.addConstraint(Sketcher.Constraint("Vertical", 3))
sketch5.addConstraint(Sketcher.Constraint("DistanceX", 0, 2, 0, 1, Q("74 mm")))
sketch5.addConstraint(Sketcher.Constraint("DistanceY", 1, 1, 1, 2, Q("4 mm")))
sketch5.addConstraint(Sketcher.Constraint("DistanceX", 0, 2, -1, 1, Q("37 mm")))
sketch5.addConstraint(Sketcher.Constraint("DistanceY", -1, 1, 0, 2, Q("8 mm")))
pocket4 = doc.addObject("PartDesign::Pocket", "Pocket003")
body.addObject(pocket4)
pocket4.Profile = sketch5
pocket4.Type = "ThroughAll"
pocket4.Reversed = True

doc.recompute()
